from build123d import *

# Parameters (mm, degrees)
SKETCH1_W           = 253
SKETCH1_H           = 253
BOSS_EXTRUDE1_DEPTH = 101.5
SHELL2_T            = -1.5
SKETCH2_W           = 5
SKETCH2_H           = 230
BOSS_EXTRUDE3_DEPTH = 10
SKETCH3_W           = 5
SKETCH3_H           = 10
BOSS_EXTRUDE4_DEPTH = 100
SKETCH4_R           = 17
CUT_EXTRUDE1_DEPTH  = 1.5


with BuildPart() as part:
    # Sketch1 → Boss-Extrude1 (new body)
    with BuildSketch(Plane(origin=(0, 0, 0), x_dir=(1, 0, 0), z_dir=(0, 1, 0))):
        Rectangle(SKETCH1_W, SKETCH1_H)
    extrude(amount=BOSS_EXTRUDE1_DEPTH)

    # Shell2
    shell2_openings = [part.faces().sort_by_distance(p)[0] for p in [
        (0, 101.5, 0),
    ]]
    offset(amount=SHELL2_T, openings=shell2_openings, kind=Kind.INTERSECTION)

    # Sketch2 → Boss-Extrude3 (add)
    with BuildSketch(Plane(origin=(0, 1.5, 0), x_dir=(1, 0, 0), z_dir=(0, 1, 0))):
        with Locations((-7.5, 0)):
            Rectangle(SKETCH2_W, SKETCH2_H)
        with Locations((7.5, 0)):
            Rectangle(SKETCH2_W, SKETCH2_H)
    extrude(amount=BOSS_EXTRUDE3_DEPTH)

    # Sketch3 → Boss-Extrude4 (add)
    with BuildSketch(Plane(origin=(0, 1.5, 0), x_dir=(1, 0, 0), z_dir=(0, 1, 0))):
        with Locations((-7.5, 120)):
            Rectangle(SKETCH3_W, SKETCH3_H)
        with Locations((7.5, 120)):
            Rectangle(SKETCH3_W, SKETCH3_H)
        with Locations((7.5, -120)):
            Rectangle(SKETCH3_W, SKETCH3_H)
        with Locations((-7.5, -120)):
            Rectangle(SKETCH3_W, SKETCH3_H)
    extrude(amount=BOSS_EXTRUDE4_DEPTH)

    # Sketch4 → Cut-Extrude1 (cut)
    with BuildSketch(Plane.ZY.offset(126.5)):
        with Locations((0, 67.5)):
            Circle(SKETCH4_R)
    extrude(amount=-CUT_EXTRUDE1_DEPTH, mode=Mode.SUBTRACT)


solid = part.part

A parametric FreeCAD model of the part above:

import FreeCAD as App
import Part
import Sketcher


def faces_at(feature, points):
    """Names of the faces that lie closest to the given points."""
    faces = feature.Shape.Faces
    near = lambda p: min(range(len(faces)), key=lambda i: faces[i].distToShape(Part.Vertex(*p))[0])
    return sorted({f"Face{near(p) + 1}" for p in points})

doc = App.newDocument("Part")
body = doc.addObject("PartDesign::Body", "Body")

sketch1 = body.newObject("Sketcher::SketchObject", "Sketch")
sketch1.AttachmentSupport = (doc.getObject("XZ_Plane"), [""])
sketch1.MapMode = "FlatFace"
sketch1.addGeometry(Part.LineSegment(App.Vector(-126.5, -126.5, 0), App.Vector(-126.5, 126.5, 0)), False)
sketch1.addGeometry(Part.LineSegment(App.Vector(-126.5, 126.5, 0), App.Vector(126.5, 126.5, 0)), False)
sketch1.addGeometry(Part.LineSegment(App.Vector(126.5, 126.5, 0), App.Vector(126.5, -126.5, 0)), False)
sketch1.addGeometry(Part.LineSegment(App.Vector(126.5, -126.5, 0), App.Vector(-126.5, -126.5, 0)), False)
sketch1.addConstraint(Sketcher.Constraint("Coincident", 0, 2, 1, 1))
sketch1.addConstraint(Sketcher.Constraint("Coincident", 1, 2, 2, 1))
sketch1.addConstraint(Sketcher.Constraint("Coincident", 2, 2, 3, 1))
sketch1.addConstraint(Sketcher.Constraint("Coincident", 3, 2, 0, 1))
sketch1.addConstraint(Sketcher.Constraint("Vertical", 0))
sketch1.addConstraint(Sketcher.Constraint("Horizontal", 1))
sketch1.addConstraint(Sketcher.Constraint("Vertical", 2))
sketch1.addConstraint(Sketcher.Constraint("Horizontal", 3))
sketch1.addConstraint(Sketcher.Constraint("Symmetric", 0, 2, 2, 2, -1, 1))
sketch1.addConstraint(Sketcher.Constraint("Equal", 3, 0))
sketch1.addConstraint(Sketcher.Constraint("DistanceX", 1, 1, 1, 2, 253.0))
pad1 = body.newObject("PartDesign::Pad", "Pad")
pad1.Profile = sketch1
pad1.Length = 101.5
pad1.Reversed = True
doc.recompute()

thickness = body.newObject("PartDesign::Thickness", "Thickness")
thickness.Base = (pad1, faces_at(pad1, [(0, 101.5, 0)]))
thickness.Value = 1.5
thickness.Reversed = True
thickness.Join = "Intersection"

sketch2 = body.newObject("Sketcher::SketchObject", "Sketch001")
sketch2.AttachmentSupport = (doc.getObject("XZ_Plane"), [""])
sketch2.MapMode = "FlatFace"
sketch2.AttachmentOffset = App.Placement(App.Vector(0, 0, -1.5), App.Rotation())
sketch2.addGeometry(Part.LineSegment(App.Vector(-10, -115, 0), App.Vector(-10, 115, 0)), False)
sketch2.addGeometry(Part.LineSegment(App.Vector(-10, 115, 0), App.Vector(-5, 115, 0)), False)
sketch2.addGeometry(Part.LineSegment(App.Vector(-5, 115, 0), App.Vector(-5, -115, 0)), False)
sketch2.addGeometry(Part.LineSegment(App.Vector(-5, -115, 0), App.Vector(-10, -115, 0)), False)
sketch2.addGeometry(Part.LineSegment(App.Vector(5, -115, 0), App.Vector(5, 115, 0)), False)
sketch2.addGeometry(Part.LineSegment(App.Vector(5, 115, 0), App.Vector(10, 115, 0)), False)
sketch2.addGeometry(Part.LineSegment(App.Vector(10, 115, 0), App.Vector(10, -115, 0)), False)
sketch2.addGeometry(Part.LineSegment(App.Vector(10, -115, 0), App.Vector(5, -115, 0)), False)
sketch2.addConstraint(Sketcher.Constraint("Coincident", 0, 2, 1, 1))
sketch2.addConstraint(Sketcher.Constraint("Coincident", 1, 2, 2, 1))
sketch2.addConstraint(Sketcher.Constraint("Coincident", 2, 2, 3, 1))
sketch2.addConstraint(Sketcher.Constraint("Coincident", 3, 2, 0, 1))
sketch2.addConstraint(Sketcher.Constraint("Coincident", 4, 2, 5, 1))
sketch2.addConstraint(Sketcher.Constraint("Coincident", 5, 2, 6, 1))
sketch2.addConstraint(Sketcher.Constraint("Coincident", 6, 2, 7, 1))
sketch2.addConstraint(Sketcher.Constraint("Coincident", 7, 2, 4, 1))
sketch2.addConstraint(Sketcher.Constraint("Vertical", 0))
sketch2.addConstraint(Sketcher.Constraint("Horizontal", 1))
sketch2.addConstraint(Sketcher.Constraint("Vertical", 2))
sketch2.addConstraint(Sketcher.Constraint("Horizontal", 3))
sketch2.addConstraint(Sketcher.Constraint("Vertical", 4))
sketch2.addConstraint(Sketcher.Constraint("Horizontal", 5))
sketch2.addConstraint(Sketcher.Constraint("Vertical", 6))
sketch2.addConstraint(Sketcher.Constraint("Horizontal", 7))
sketch2.addConstraint(Sketcher.Constraint("Symmetric", 2, 2, 4, 2, -1, 1))
sketch2.addConstraint(Sketcher.Constraint("Symmetric", 0, 2, 6, 2, -1, 1))
sketch2.addConstraint(Sketcher.Constraint("Horizontal", 1, 2, 4, 2))
sketch2.addConstraint(Sketcher.Constraint("DistanceX", 1, 1, 1, 2, 5.0))
sketch2.addConstraint(Sketcher.Constraint("DistanceY", 0, 1, 0, 2, 230.0))
sketch2.addConstraint(Sketcher.Constraint("DistanceX", 0, 2, -1, 1, 10.0))
pad2 = body.newObject("PartDesign::Pad", "Pad001")
pad2.Profile = sketch2
pad2.Length = 10
pad2.Reversed = True

sketch3 = body.newObject("Sketcher::SketchObject", "Sketch002")
sketch3.AttachmentSupport = (doc.getObject("XZ_Plane"), [""])
sketch3.MapMode = "FlatFace"
sketch3.AttachmentOffset = App.Placement(App.Vector(0, 0, -1.5), App.Rotation())
sketch3.addGeometry(Part.LineSegment(App.Vector(-10, -125, 0), App.Vector(-10, -115, 0)), False)
sketch3.addGeometry(Part.LineSegment(App.Vector(-10, -115, 0), App.Vector(-5, -115, 0)), False)
sketch3.addGeometry(Part.LineSegment(App.Vector(-5, -115, 0), App.Vector(-5, -125, 0)), False)
sketch3.addGeometry(Part.LineSegment(App.Vector(-5, -125, 0), App.Vector(-10, -125, 0)), False)
sketch3.addGeometry(Part.LineSegment(App.Vector(5, -125, 0), App.Vector(5, -115, 0)), False)
sketch3.addGeometry(Part.LineSegment(App.Vector(5, -115, 0), App.Vector(10, -115, 0)), False)
sketch3.addGeometry(Part.LineSegment(App.Vector(10, -115, 0), App.Vector(10, -125, 0)), False)
sketch3.addGeometry(Part.LineSegment(App.Vector(10, -125, 0), App.Vector(5, -125, 0)), False)
sketch3.addGeometry(Part.LineSegment(App.Vector(5, 115, 0), App.Vector(5, 125, 0)), False)
sketch3.addGeometry(Part.LineSegment(App.Vector(5, 125, 0), App.Vector(10, 125, 0)), False)
sketch3.addGeometry(Part.LineSegment(App.Vector(10, 125, 0), App.Vector(10, 115, 0)), False)
sketch3.addGeometry(Part.LineSegment(App.Vector(10, 115, 0), App.Vector(5, 115, 0)), False)
sketch3.addGeometry(Part.LineSegment(App.Vector(-10, 115, 0), App.Vector(-10, 125, 0)), False)
sketch3.addGeometry(Part.LineSegment(App.Vector(-10, 125, 0), App.Vector(-5, 125, 0)), False)
sketch3.addGeometry(Part.LineSegment(App.Vector(-5, 125, 0), App.Vector(-5, 115, 0)), False)
sketch3.addGeometry(Part.LineSegment(App.Vector(-5, 115, 0), App.Vector(-10, 115, 0)), False)
sketch3.addConstraint(Sketcher.Constraint("Coincident", 0, 2, 1, 1))
sketch3.addConstraint(Sketcher.Constraint("Coincident", 1, 2, 2, 1))
sketch3.addConstraint(Sketcher.Constraint("Coincident", 2, 2, 3, 1))
sketch3.addConstraint(Sketcher.Constraint("Coincident", 3, 2, 0, 1))
sketch3.addConstraint(Sketcher.Constraint("Coincident", 4, 2, 5, 1))
sketch3.addConstraint(Sketcher.Constraint("Coincident", 5, 2, 6, 1))
sketch3.addConstraint(Sketcher.Constraint("Coincident", 6, 2, 7, 1))
sketch3.addConstraint(Sketcher.Constraint("Coincident", 7, 2, 4, 1))
sketch3.addConstraint(Sketcher.Constraint("Coincident", 8, 2, 9, 1))
sketch3.addConstraint(Sketcher.Constraint("Coincident", 9, 2, 10, 1))
sketch3.addConstraint(Sketcher.Constraint("Coincident", 10, 2, 11, 1))
sketch3.addConstraint(Sketcher.Constraint("Coincident", 11, 2, 8, 1))
sketch3.addConstraint(Sketcher.Constraint("Coincident", 12, 2, 13, 1))
sketch3.addConstraint(Sketcher.Constraint("Coincident", 13, 2, 14, 1))
sketch3.addConstraint(Sketcher.Constraint("Coincident", 14, 2, 15, 1))
sketch3.addConstraint(Sketcher.Constraint("Coincident", 15, 2, 12, 1))
sketch3.addConstraint(Sketcher.Constraint("Vertical", 0))
sketch3.addConstraint(Sketcher.Constraint("Horizontal", 1))
sketch3.addConstraint(Sketcher.Constraint("Vertical", 2))
sketch3.addConstraint(Sketcher.Constraint("Horizontal", 3))
sketch3.addConstraint(Sketcher.Constraint("Vertical", 4))
sketch3.addConstraint(Sketcher.Constraint("Horizontal", 5))
sketch3.addConstraint(Sketcher.Constraint("Vertical", 6))
sketch3.addConstraint(Sketcher.Constraint("Horizontal", 7))
sketch3.addConstraint(Sketcher.Constraint("Vertical", 8))
sketch3.addConstraint(Sketcher.Constraint("Horizontal", 9))
sketch3.addConstraint(Sketcher.Constraint("Vertical", 10))
sketch3.addConstraint(Sketcher.Constraint("Horizontal", 11))
sketch3.addConstraint(Sketcher.Constraint("Vertical", 12))
sketch3.addConstraint(Sketcher.Constraint("Horizontal", 13))
sketch3.addConstraint(Sketcher.Constraint("Vertical", 14))
sketch3.addConstraint(Sketcher.Constraint("Horizontal", 15))
sketch3.addConstraint(Sketcher.Constraint("Symmetric", 2, 2, 8, 2, -1, 1))
sketch3.addConstraint(Sketcher.Constraint("Symmetric", 0, 2, 10, 2, -1, 1))
sketch3.addConstraint(Sketcher.Constraint("Symmetric", 6, 2, 12, 2, -1, 1))
sketch3.addConstraint(Sketcher.Constraint("Symmetric", 4, 2, 14, 2, -1, 1))
sketch3.addConstraint(Sketcher.Constraint("Symmetric", 1, 2, 4, 2, -2))
sketch3.addConstraint(Sketcher.Constraint("Symmetric", 3, 2, 6, 2, -2))
sketch3.addConstraint(Sketcher.Constraint("DistanceX", 1, 1, 1, 2, 5.0))
sketch3.addConstraint(Sketcher.Constraint("DistanceY", 0, 1, 0, 2, 10.0))
sketch3.addConstraint(Sketcher.Constraint("DistanceX", 0, 2, -1, 1, 10.0))
sketch3.addConstraint(Sketcher.Constraint("DistanceY", 0, 2, -1, 1, 115.0))
pad3 = body.newObject("PartDesign::Pad", "Pad002")
pad3.Profile = sketch3
pad3.Length = 100
pad3.Reversed = True

sketch4 = body.newObject("Sketcher::SketchObject", "Sketch003")
sketch4.AttachmentSupport = (doc.getObject("YZ_Plane"), [""])
sketch4.MapMode = "FlatFace"
sketch4.AttachmentOffset = App.Placement(App.Vector(0, 0, -126.5), App.Rotation())
sketch4.addGeometry(Part.Circle(App.Vector(67.5, 0, 0), App.Vector(0, 0, 1), 17), False)
sketch4.addConstraint(Sketcher.Constraint("PointOnObject", 0, 3, -1))
sketch4.addConstraint(Sketcher.Constraint("Diameter", 0, 34.0))
sketch4.addConstraint(Sketcher.Constraint("DistanceX", -1, 1, 0, 3, 67.5))
pocket1 = body.newObject("PartDesign::Pocket", "Pocket")
pocket1.Profile = sketch4
pocket1.Length = 1.5
pocket1.Reversed = True

doc.recompute()
